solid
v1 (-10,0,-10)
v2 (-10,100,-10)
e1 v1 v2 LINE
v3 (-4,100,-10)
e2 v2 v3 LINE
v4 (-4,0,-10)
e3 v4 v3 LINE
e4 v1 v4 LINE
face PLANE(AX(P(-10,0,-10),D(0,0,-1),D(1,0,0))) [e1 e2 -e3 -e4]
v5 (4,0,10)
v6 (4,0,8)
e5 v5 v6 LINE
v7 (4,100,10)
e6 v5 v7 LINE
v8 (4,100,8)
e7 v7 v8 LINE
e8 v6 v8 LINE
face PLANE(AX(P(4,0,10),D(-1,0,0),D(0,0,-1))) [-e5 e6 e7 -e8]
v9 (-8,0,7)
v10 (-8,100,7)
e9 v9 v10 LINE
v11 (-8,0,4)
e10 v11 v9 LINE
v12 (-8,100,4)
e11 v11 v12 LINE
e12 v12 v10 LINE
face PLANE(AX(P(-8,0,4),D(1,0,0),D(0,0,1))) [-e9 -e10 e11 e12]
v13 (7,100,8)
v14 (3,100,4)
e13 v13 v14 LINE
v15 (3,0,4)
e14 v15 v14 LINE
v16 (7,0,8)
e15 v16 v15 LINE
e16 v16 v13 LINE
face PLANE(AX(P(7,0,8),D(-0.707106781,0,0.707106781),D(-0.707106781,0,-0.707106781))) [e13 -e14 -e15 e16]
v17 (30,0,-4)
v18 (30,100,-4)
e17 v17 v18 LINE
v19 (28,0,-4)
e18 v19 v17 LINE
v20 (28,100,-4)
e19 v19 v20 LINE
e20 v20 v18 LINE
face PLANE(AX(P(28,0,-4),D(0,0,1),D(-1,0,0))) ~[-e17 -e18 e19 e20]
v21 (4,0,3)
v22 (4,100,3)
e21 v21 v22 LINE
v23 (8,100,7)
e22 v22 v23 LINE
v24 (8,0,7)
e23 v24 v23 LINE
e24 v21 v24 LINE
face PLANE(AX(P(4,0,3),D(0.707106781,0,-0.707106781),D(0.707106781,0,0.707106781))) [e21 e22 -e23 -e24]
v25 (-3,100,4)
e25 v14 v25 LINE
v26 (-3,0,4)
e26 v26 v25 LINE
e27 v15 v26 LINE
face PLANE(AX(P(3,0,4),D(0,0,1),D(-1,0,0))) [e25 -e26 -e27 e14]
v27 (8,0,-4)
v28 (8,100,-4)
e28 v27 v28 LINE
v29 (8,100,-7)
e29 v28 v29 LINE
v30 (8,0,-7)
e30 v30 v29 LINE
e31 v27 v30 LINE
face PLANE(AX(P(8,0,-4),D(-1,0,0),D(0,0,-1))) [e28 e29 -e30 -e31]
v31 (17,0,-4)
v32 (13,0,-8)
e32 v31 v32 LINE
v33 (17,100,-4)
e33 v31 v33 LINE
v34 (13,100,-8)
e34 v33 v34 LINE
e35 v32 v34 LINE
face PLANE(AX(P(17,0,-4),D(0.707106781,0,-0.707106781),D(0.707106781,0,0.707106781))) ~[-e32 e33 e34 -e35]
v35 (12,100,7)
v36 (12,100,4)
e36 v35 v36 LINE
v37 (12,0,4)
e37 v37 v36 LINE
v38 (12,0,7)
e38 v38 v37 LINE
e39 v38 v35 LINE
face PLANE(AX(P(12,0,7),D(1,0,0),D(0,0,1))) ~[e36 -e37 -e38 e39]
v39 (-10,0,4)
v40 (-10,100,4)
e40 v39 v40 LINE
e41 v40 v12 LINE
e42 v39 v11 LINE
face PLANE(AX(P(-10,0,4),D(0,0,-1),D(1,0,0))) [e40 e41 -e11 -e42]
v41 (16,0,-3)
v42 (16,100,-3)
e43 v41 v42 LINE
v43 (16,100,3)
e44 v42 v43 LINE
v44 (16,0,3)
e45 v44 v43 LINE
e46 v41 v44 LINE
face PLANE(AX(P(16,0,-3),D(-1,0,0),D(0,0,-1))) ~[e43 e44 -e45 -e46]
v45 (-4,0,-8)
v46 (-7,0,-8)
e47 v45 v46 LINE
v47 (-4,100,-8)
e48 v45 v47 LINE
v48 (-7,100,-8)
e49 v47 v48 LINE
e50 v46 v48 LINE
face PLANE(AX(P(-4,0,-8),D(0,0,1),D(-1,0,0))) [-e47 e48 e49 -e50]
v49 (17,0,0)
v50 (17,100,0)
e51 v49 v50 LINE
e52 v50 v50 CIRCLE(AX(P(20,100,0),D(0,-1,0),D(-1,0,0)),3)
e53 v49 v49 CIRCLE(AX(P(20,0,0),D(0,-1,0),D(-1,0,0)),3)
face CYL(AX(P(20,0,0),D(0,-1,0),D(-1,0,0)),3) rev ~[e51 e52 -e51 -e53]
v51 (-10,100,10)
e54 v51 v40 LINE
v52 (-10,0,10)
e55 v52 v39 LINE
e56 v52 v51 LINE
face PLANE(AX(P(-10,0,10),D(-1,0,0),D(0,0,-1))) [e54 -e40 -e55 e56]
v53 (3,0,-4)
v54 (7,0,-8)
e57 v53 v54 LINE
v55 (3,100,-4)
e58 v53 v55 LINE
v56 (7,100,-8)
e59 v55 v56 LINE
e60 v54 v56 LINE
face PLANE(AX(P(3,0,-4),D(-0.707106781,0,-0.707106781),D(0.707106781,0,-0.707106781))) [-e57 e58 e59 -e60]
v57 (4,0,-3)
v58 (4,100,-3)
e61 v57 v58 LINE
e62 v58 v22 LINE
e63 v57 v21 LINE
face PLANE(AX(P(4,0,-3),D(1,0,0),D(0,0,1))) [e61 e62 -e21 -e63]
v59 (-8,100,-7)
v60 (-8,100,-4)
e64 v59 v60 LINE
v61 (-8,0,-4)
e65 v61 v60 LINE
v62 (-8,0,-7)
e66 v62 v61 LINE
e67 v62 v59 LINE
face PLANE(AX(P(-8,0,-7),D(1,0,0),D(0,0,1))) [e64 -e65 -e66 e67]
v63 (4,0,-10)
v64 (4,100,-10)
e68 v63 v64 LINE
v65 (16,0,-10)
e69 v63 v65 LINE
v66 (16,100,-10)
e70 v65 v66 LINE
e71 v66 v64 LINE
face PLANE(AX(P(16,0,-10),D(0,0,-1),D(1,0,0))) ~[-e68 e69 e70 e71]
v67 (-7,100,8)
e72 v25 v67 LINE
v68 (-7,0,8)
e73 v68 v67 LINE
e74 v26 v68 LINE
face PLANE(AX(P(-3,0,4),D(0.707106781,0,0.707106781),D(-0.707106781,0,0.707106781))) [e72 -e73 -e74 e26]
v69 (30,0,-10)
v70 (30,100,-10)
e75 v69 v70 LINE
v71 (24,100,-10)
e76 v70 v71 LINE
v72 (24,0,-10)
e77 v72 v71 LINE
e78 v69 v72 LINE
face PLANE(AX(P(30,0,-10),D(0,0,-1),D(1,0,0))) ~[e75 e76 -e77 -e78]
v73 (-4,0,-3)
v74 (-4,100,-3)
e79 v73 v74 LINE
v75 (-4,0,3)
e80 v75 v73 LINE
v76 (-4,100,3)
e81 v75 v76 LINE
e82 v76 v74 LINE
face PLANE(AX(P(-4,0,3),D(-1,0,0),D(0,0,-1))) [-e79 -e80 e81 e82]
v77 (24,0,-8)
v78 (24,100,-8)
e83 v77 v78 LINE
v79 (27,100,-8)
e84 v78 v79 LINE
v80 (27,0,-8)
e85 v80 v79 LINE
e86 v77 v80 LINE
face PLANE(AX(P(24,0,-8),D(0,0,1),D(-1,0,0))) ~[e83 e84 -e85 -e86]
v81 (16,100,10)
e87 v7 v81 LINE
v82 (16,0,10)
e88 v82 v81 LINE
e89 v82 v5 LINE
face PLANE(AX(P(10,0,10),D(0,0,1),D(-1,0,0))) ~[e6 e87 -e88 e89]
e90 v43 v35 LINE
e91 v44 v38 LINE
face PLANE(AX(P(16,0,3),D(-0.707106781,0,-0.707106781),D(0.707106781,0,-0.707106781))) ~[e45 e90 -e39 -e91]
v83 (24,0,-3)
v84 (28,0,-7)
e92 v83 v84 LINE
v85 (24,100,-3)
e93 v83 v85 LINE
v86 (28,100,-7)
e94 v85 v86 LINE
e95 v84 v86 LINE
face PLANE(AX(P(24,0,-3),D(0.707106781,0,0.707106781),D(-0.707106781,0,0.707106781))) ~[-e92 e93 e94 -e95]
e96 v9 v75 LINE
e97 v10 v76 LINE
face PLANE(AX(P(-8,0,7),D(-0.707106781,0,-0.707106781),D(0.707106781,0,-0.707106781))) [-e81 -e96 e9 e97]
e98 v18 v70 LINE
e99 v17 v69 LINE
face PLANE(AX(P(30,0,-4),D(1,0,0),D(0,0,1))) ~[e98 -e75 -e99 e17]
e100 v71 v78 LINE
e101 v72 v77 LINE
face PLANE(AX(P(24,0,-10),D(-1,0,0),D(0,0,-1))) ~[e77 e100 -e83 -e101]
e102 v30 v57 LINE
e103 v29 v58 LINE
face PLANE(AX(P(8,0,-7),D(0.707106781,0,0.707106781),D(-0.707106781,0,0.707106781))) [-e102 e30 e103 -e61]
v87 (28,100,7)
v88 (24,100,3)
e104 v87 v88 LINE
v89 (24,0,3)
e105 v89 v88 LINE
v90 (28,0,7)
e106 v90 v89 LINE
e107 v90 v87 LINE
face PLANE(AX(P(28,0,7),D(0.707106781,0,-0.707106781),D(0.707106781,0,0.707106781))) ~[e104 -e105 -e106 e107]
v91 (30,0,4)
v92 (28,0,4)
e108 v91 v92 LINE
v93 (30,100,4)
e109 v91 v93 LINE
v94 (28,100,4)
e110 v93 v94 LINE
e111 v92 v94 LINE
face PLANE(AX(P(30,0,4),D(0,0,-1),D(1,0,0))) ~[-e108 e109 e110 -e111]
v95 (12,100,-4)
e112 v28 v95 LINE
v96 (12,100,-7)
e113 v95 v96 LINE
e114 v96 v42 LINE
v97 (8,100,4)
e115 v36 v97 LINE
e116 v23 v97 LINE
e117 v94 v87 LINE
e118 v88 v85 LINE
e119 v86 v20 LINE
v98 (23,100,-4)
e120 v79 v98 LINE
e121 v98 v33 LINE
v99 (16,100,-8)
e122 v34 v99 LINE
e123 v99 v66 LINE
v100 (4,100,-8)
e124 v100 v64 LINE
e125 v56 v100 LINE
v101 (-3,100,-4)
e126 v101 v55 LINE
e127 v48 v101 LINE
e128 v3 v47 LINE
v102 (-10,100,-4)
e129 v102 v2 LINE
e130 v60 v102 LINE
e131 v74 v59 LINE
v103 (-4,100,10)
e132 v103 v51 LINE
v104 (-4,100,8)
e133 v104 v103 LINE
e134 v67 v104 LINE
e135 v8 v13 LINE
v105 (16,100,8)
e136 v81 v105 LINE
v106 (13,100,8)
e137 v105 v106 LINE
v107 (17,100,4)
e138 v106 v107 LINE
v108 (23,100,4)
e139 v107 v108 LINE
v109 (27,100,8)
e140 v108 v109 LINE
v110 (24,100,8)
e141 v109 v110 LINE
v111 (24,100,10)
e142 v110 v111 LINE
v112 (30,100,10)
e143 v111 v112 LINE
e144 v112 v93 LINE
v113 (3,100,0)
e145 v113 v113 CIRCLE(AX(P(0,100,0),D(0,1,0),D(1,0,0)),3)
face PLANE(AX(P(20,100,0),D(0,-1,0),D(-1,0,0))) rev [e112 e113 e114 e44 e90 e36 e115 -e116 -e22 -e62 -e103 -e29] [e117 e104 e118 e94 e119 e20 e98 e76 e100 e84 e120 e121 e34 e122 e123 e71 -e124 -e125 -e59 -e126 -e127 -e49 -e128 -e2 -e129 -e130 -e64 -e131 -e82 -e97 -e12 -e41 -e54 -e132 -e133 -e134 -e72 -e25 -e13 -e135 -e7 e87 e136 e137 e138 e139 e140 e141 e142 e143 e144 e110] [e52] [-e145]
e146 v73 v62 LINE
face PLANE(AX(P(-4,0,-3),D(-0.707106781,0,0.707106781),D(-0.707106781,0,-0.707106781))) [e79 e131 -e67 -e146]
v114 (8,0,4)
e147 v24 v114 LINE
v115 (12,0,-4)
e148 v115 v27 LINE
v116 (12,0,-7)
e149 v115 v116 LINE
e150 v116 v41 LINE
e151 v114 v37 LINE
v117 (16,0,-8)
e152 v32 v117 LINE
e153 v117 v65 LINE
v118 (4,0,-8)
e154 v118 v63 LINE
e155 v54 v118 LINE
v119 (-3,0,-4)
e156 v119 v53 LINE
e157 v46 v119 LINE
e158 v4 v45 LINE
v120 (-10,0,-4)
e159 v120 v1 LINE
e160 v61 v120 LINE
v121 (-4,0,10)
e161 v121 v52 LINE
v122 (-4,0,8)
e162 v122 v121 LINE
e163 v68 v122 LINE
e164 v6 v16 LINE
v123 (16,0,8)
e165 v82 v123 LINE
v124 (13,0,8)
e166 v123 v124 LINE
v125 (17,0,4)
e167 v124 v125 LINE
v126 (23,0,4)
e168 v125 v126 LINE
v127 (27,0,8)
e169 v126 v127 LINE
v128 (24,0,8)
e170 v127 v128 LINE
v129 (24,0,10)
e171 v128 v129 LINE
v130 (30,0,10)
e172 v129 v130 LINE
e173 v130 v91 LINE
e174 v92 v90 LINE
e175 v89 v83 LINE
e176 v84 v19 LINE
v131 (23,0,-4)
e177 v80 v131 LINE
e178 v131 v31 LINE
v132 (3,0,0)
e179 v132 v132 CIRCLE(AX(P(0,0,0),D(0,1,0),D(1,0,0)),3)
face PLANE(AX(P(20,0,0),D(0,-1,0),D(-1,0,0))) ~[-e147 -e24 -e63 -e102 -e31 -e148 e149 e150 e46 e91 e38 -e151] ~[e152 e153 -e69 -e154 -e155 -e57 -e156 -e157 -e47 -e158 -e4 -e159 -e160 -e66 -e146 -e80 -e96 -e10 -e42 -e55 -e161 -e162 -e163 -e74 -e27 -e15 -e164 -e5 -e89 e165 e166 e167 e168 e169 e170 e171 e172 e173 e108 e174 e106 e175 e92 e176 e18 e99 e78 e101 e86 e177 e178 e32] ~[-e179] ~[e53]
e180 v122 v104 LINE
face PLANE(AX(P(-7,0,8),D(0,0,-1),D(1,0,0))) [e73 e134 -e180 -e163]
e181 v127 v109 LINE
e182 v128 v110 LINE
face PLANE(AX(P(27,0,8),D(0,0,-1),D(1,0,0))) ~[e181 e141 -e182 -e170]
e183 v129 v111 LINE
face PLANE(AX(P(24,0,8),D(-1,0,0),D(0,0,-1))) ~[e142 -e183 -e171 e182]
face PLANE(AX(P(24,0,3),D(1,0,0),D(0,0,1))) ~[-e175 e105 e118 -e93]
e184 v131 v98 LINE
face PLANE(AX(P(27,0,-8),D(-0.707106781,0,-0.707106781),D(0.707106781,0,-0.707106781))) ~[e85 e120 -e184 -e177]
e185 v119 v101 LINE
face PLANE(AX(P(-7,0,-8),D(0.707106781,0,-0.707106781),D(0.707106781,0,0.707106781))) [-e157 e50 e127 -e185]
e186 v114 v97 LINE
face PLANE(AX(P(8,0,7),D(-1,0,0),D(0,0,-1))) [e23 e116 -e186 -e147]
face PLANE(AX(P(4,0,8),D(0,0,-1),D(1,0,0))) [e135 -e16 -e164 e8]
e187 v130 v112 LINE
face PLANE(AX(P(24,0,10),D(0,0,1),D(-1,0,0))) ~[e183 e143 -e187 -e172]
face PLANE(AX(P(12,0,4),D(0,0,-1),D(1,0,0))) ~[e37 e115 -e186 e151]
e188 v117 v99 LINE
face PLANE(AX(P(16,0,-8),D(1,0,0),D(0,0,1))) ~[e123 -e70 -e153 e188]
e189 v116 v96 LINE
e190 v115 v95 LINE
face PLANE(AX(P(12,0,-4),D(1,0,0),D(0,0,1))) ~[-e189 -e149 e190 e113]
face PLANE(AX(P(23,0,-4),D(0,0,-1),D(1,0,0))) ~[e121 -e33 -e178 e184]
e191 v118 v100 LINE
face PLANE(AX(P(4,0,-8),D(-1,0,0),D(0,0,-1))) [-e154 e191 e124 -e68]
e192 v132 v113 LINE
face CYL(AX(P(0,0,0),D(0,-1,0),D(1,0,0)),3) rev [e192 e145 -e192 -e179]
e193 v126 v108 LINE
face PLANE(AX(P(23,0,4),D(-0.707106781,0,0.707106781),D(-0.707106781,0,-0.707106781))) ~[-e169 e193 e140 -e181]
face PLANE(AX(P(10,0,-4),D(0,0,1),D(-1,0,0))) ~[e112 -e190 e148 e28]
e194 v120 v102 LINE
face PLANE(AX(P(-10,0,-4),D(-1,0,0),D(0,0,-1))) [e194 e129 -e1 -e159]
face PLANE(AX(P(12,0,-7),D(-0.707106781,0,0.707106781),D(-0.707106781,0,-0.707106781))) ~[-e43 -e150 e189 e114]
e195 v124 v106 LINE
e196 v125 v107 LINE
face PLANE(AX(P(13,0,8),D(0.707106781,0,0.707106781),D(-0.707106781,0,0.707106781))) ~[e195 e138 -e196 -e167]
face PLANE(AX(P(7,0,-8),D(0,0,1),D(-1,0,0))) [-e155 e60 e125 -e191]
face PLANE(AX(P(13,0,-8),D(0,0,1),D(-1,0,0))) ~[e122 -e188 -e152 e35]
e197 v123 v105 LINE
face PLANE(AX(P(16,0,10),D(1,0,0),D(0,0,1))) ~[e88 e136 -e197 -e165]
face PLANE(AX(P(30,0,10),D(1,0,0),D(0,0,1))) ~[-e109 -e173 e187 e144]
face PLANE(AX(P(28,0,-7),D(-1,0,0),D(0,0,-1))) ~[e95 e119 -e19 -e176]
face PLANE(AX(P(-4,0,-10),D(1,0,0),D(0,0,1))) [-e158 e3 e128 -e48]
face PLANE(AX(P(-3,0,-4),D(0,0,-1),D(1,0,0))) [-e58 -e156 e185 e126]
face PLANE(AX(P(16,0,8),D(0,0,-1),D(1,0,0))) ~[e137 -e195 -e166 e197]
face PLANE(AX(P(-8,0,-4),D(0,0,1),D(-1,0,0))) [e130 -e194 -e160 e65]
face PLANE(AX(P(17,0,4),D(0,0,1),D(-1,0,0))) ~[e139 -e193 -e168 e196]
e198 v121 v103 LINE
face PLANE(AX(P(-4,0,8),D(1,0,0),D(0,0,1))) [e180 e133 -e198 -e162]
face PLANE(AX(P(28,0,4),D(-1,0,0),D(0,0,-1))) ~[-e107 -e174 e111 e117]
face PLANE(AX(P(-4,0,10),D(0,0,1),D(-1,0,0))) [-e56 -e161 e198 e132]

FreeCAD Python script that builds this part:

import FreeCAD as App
import Part
import Sketcher
Q = App.Units.Quantity


def add_polygon(sketch, points):
    """Adds a closed chain of lines whose ends are joined by coincident constraints."""
    first, n = sketch.GeometryCount, len(points)
    for a, b in zip(points, points[1:] + points[:1]):
        sketch.addGeometry(Part.LineSegment(App.Vector(*a, 0), App.Vector(*b, 0)), False)
    for i in range(n):
        sketch.addConstraint(Sketcher.Constraint("Coincident", first + i, 2, first + (i + 1) % n, 1))

doc = App.newDocument("Part")
body = doc.addObject("PartDesign::Body", "Body")

# Sketch on XZ plane
sketch1 = body.newObject("Sketcher::SketchObject", "Sketch")
sketch1.AttachmentSupport = (doc.getObject("XZ_Plane"), [""])
sketch1.MapMode = "FlatFace"
add_polygon(sketch1, [(-4, -8), (-4, -10), (-10, -10), (-10, -4), (-8, -4), (-8, -7), (-4, -3), (-4, 3), (-8, 7), (-8, 4), (-10, 4), (-10, 10), (-4, 10), (-4, 8), (-7, 8), (-3, 4), (3, 4), (7, 8), (4, 8), (4, 10), (10, 10), (10, 4), (8, 4), (8, 7), (4, 3), (4, -3), (8, -7), (8, -4), (10, -4), (10, -10), (4, -10), (4, -8), (7, -8), (3, -4), (-3, -4), (-7, -8)])  # lines 0-35
sketch1.addGeometry(Part.Circle(App.Vector(0, 0, 0), App.Vector(0, 0, 1), 3), False)  # 36
sketch1.addConstraint(Sketcher.Constraint("Vertical", 0))
sketch1.addConstraint(Sketcher.Constraint("Horizontal", 1))
sketch1.addConstraint(Sketcher.Constraint("Vertical", 2))
sketch1.addConstraint(Sketcher.Constraint("Horizontal", 3))
sketch1.addConstraint(Sketcher.Constraint("Vertical", 4))
sketch1.addConstraint(Sketcher.Constraint("Vertical", 6))
sketch1.addConstraint(Sketcher.Constraint("Vertical", 8))
sketch1.addConstraint(Sketcher.Constraint("Horizontal", 9))
sketch1.addConstraint(Sketcher.Constraint("Vertical", 10))
sketch1.addConstraint(Sketcher.Constraint("Horizontal", 11))
sketch1.addConstraint(Sketcher.Constraint("Vertical", 12))
sketch1.addConstraint(Sketcher.Constraint("Horizontal", 13))
sketch1.addConstraint(Sketcher.Constraint("Horizontal", 15))
sketch1.addConstraint(Sketcher.Constraint("Horizontal", 17))
sketch1.addConstraint(Sketcher.Constraint("Vertical", 18))
sketch1.addConstraint(Sketcher.Constraint("Horizontal", 19))
sketch1.addConstraint(Sketcher.Constraint("Vertical", 20))
sketch1.addConstraint(Sketcher.Constraint("Horizontal", 21))
sketch1.addConstraint(Sketcher.Constraint("Vertical", 22))
sketch1.addConstraint(Sketcher.Constraint("Vertical", 24))
sketch1.addConstraint(Sketcher.Constraint("Vertical", 26))
sketch1.addConstraint(Sketcher.Constraint("Horizontal", 27))
sketch1.addConstraint(Sketcher.Constraint("Vertical", 28))
sketch1.addConstraint(Sketcher.Constraint("Horizontal", 29))
sketch1.addConstraint(Sketcher.Constraint("Vertical", 30))
sketch1.addConstraint(Sketcher.Constraint("Horizontal", 31))
sketch1.addConstraint(Sketcher.Constraint("Horizontal", 33))
sketch1.addConstraint(Sketcher.Constraint("Horizontal", 35))
sketch1.addConstraint(Sketcher.Constraint("Coincident", 36, 3, -1, 1))
sketch1.addConstraint(Sketcher.Constraint("Symmetric", 0, 2, 18, 2, -1, 1))
sketch1.addConstraint(Sketcher.Constraint("Symmetric", 2, 2, 20, 2, -1, 1))
sketch1.addConstraint(Sketcher.Constraint("Symmetric", 4, 2, 22, 2, -1, 1))
sketch1.addConstraint(Sketcher.Constraint("Symmetric", 5, 2, 23, 2, -1, 1))
sketch1.addConstraint(Sketcher.Constraint("Symmetric", 7, 2, 25, 2, -1, 1))
sketch1.addConstraint(Sketcher.Constraint("Symmetric", 9, 2, 27, 2, -1, 1))
sketch1.addConstraint(Sketcher.Constraint("Symmetric", 11, 2, 29, 2, -1, 1))
sketch1.addConstraint(Sketcher.Constraint("Symmetric", 13, 2, 31, 2, -1, 1))
sketch1.addConstraint(Sketcher.Constraint("Symmetric", 14, 2, 32, 2, -1, 1))
sketch1.addConstraint(Sketcher.Constraint("Symmetric", 16, 2, 34, 2, -1, 1))
sketch1.addConstraint(Sketcher.Constraint("Symmetric", 13, 2, 16, 2, -2))
sketch1.addConstraint(Sketcher.Constraint("Symmetric", 11, 2, 18, 2, -2))
sketch1.addConstraint(Sketcher.Constraint("Symmetric", 9, 2, 20, 2, -2))
sketch1.addConstraint(Sketcher.Constraint("Symmetric", 7, 2, 22, 2, -2))
sketch1.addConstraint(Sketcher.Constraint("Perpendicular", 5, 7))
sketch1.addConstraint(Sketcher.Constraint("Parallel", 7, 14))
sketch1.addConstraint(Sketcher.Constraint("Perpendicular", 14, 16))
sketch1.addConstraint(Sketcher.Constraint("Perpendicular", 23, 25))
sketch1.addConstraint(Sketcher.Constraint("Perpendicular", 32, 34))
sketch1.addConstraint(Sketcher.Constraint("Horizontal", 9, 2, 14, 2))
sketch1.addConstraint(Sketcher.Constraint("Horizontal", 6, 2, 23, 2))
sketch1.addConstraint(Sketcher.Constraint("Vertical", 0, 2, 5, 2))
sketch1.addConstraint(Sketcher.Constraint("Equal", 11, 15))
sketch1.addConstraint(Sketcher.Constraint("Equal", 27, 0))
sketch1.addConstraint(Sketcher.Constraint("Equal", 33, 2))
sketch1.addConstraint(Sketcher.Constraint("Equal", 35, 4))
sketch1.addConstraint(Sketcher.Constraint("Equal", 2, 6))
sketch1.addConstraint(Sketcher.Constraint("Diameter", 36, Q("6 mm")))
sketch1.addConstraint(Sketcher.Constraint("DistanceX", 1, 2, 1, 1, Q("6 mm")))
sketch1.addConstraint(Sketcher.Constraint("DistanceX", 3, 1, 3, 2, Q("2 mm")))
sketch1.addConstraint(Sketcher.Constraint("DistanceX", 13, 2, 13, 1, Q("3 mm")))
pad1 = body.newObject("PartDesign::Pad", "Pad")
pad1.Profile = sketch1
pad1.Length = 100
pad1.Reversed = True
doc.recompute()

datumplane = body.newObject("PartDesign::Plane", "DatumPlane")
datumplane.AttachmentSupport = (doc.getObject("YZ_Plane"), [""])
datumplane.MapMode = "FlatFace"
datumplane.AttachmentOffset = App.Placement(App.Vector(0, 0, 10), App.Rotation())
mirrored = body.newObject("PartDesign::Mirrored", "Mirrored")
mirrored.Originals = [pad1]
mirrored.MirrorPlane = (datumplane, [""])
body.Tip = mirrored

doc.recompute()
